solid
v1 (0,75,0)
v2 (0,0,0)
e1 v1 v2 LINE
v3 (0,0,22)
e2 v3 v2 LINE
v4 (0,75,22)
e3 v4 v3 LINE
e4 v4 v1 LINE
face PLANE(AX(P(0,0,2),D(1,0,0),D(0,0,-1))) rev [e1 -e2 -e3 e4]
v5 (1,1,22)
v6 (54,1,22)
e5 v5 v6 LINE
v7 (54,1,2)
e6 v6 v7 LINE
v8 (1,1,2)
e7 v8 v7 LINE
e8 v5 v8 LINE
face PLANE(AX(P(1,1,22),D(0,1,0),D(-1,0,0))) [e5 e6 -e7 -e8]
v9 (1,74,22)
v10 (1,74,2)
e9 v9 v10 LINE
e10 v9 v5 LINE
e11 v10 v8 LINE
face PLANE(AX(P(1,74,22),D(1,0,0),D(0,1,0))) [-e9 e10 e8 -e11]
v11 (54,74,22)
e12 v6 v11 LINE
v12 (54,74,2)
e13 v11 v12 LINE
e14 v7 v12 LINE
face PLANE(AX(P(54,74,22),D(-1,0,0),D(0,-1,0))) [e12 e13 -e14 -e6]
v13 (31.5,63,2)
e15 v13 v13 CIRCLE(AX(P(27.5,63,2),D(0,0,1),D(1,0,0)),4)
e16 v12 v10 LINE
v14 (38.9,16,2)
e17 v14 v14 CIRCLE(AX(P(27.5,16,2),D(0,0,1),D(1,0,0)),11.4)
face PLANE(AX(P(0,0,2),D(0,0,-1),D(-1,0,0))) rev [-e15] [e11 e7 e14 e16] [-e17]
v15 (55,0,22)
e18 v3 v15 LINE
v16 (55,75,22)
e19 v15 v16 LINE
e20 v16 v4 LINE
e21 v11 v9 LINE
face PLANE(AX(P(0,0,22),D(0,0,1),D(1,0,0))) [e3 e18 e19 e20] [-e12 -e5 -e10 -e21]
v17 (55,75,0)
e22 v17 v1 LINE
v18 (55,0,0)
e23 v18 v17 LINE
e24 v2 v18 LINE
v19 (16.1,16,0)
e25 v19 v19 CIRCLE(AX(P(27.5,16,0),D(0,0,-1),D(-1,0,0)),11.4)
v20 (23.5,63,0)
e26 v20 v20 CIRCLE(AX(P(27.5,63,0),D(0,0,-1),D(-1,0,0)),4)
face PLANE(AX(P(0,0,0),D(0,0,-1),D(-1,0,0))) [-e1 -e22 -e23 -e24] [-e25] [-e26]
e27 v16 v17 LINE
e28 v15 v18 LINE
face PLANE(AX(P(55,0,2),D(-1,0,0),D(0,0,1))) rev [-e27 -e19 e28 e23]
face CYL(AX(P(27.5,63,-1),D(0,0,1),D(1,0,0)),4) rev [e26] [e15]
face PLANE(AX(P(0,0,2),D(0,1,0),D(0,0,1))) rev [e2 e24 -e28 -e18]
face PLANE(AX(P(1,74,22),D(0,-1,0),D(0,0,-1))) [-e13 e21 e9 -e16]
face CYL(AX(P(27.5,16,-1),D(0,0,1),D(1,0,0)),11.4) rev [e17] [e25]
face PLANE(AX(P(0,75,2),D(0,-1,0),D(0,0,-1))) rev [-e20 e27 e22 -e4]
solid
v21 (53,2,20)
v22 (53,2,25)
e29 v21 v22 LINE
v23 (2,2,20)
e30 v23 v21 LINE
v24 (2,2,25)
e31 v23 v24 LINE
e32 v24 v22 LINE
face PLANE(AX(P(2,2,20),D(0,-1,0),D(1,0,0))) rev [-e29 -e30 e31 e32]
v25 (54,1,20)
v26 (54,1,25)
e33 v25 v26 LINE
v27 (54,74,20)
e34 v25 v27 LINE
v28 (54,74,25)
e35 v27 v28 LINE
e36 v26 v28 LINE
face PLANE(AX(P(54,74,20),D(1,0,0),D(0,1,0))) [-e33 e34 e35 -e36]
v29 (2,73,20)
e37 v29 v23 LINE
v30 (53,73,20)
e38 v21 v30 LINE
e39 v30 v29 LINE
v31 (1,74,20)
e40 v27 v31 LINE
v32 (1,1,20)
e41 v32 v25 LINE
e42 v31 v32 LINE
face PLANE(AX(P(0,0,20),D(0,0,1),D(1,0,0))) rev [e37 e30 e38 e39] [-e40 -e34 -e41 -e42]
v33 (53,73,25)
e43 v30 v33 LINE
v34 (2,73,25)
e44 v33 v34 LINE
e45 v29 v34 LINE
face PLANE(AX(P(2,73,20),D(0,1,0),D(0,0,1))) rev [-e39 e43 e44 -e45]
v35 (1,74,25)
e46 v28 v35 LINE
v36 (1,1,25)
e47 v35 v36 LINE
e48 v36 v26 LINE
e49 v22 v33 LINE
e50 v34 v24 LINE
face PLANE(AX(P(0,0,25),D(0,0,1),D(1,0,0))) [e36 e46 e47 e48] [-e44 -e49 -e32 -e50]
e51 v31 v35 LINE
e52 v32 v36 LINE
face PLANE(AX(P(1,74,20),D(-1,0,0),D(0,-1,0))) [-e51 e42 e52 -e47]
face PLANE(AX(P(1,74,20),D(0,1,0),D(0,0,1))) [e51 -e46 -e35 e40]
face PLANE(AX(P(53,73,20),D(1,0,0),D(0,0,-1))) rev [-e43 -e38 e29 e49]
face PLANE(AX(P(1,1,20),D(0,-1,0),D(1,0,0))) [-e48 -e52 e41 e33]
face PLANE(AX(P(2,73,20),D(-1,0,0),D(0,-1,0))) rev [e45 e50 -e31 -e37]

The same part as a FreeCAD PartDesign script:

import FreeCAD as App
import Part
import Sketcher
from FreeCAD import Vector
Q = App.Units.Quantity


def add_polygon(sketch, points):
    """Adds a closed chain of lines whose ends are joined by coincident constraints."""
    first, n = sketch.GeometryCount, len(points)
    for a, b in zip(points, points[1:] + points[:1]):
        sketch.addGeometry(Part.LineSegment(App.Vector(*a, 0), App.Vector(*b, 0)), False)
    for i in range(n):
        sketch.addConstraint(Sketcher.Constraint("Coincident", first + i, 2, first + (i + 1) % n, 1))

doc = App.newDocument("Part")
body = doc.addObject("PartDesign::Body", "Body")

sketch1 = body.newObject("Sketcher::SketchObject", "Sketch")
sketch1.AttachmentSupport = (doc.getObject("XY_Plane"), [""])
sketch1.MapMode = "FlatFace"
add_polygon(sketch1, [(0, 75), (0, 0), (55, 0), (55, 75)])
sketch1.addConstraint([
    Sketcher.Constraint("Vertical", 0),
    Sketcher.Constraint("Horizontal", 1),
    Sketcher.Constraint("Vertical", 2),
    Sketcher.Constraint("Horizontal", 3),
    Sketcher.Constraint("Coincident", 0, 2, -1, 1),
    Sketcher.Constraint("DistanceX", 1, 1, 1, 2, Q("55 mm")),
    Sketcher.Constraint("DistanceY", 0, 2, 0, 1, Q("75 mm")),
])
pad1 = body.newObject("PartDesign::Pad", "Pad")
pad1.Profile = sketch1
pad1.Length = 2

sketch2 = body.newObject("Sketcher::SketchObject", "Sketch001")
sketch2.AttachmentSupport = (doc.getObject("XY_Plane"), [""])
sketch2.MapMode = "FlatFace"
sketch2.AttachmentOffset = App.Placement(Vector(0, 0, 2), App.Rotation())
add_polygon(sketch2, [(0, 75), (0, 0), (55, 0), (55, 75)])
add_polygon(sketch2, [(54, 1), (1, 1), (1, 74), (54, 74)])
sketch2.addConstraint([
    Sketcher.Constraint("Vertical", 0),
    Sketcher.Constraint("Horizontal", 1),
    Sketcher.Constraint("Vertical", 2),
    Sketcher.Constraint("Horizontal", 3),
    Sketcher.Constraint("Horizontal", 4),
    Sketcher.Constraint("Vertical", 5),
    Sketcher.Constraint("Horizontal", 6),
    Sketcher.Constraint("Vertical", 7),
    Sketcher.Constraint("Coincident", 0, 2, -1, 1),
    Sketcher.Constraint("DistanceX", 1, 1, 1, 2, Q("55 mm")),
    Sketcher.Constraint("DistanceX", 4, 2, 4, 1, Q("53 mm")),
    Sketcher.Constraint("DistanceY", 0, 2, 0, 1, Q("75 mm")),
    Sketcher.Constraint("DistanceY", 5, 1, 5, 2, Q("73 mm")),
    Sketcher.Constraint("DistanceX", -1, 1, 4, 2, Q("1 mm")),
    Sketcher.Constraint("DistanceY", -1, 1, 4, 2, Q("1 mm")),
])
pad2 = body.newObject("PartDesign::Pad", "Pad001")
pad2.Profile = sketch2
pad2.Length = 20

sketch3 = body.newObject("Sketcher::SketchObject", "Sketch002")
sketch3.AttachmentSupport = (doc.getObject("XY_Plane"), [""])
sketch3.MapMode = "FlatFace"
sketch3.AttachmentOffset = App.Placement(Vector(0, 0, 2), App.Rotation())
sketch3.addGeometry([
    Part.Circle(Vector(27.5, 16, 0), Vector(0, 0, 1), 11.4),
    Part.Circle(Vector(27.5, 63, 0), Vector(0, 0, 1), 4),
], False)
sketch3.addConstraint([
    Sketcher.Constraint("Vertical", 0, 3, 1, 3),
    Sketcher.Constraint("Diameter", 1, Q("8 mm")),
    Sketcher.Constraint("Diameter", 0, Q("22.8 mm")),
    Sketcher.Constraint("DistanceY", -1, 1, 0, 3, Q("16 mm")),
    Sketcher.Constraint("DistanceY", -1, 1, 1, 3, Q("63 mm")),
    Sketcher.Constraint("DistanceX", -1, 1, 0, 3, Q("27.5 mm")),
])
pocket1 = body.newObject("PartDesign::Pocket", "Pocket")
pocket1.Profile = sketch3
pocket1.Length = 3
body2 = doc.addObject("PartDesign::Body", "Body001")

sketch4 = body2.newObject("Sketcher::SketchObject", "Sketch003")
sketch4.AttachmentSupport = (doc.getObject("XY_Plane001"), [""])
sketch4.MapMode = "FlatFace"
sketch4.AttachmentOffset = App.Placement(Vector(0, 0, 22), App.Rotation())
add_polygon(sketch4, [(1, 74), (1, 1), (54, 1), (54, 74)])
add_polygon(sketch4, [(53, 2), (2, 2), (2, 73), (53, 73)])
sketch4.addConstraint([
    Sketcher.Constraint("Vertical", 0),
    Sketcher.Constraint("Horizontal", 1),
    Sketcher.Constraint("Vertical", 2),
    Sketcher.Constraint("Horizontal", 3),
    Sketcher.Constraint("Horizontal", 4),
    Sketcher.Constraint("Vertical", 5),
    Sketcher.Constraint("Horizontal", 6),
    Sketcher.Constraint("Vertical", 7),
    Sketcher.Constraint("DistanceX", 1, 1, 1, 2, Q("53 mm")),
    Sketcher.Constraint("DistanceX", 4, 2, 4, 1, Q("51 mm")),
    Sketcher.Constraint("DistanceY", 0, 2, 0, 1, Q("73 mm")),
    Sketcher.Constraint("DistanceY", 5, 1, 5, 2, Q("71 mm")),
    Sketcher.Constraint("DistanceX", -1, 1, 0, 2, Q("1 mm")),
    Sketcher.Constraint("DistanceY", -1, 1, 0, 2, Q("1 mm")),
    Sketcher.Constraint("DistanceX", -1, 1, 4, 2, Q("2 mm")),
    Sketcher.Constraint("DistanceY", -1, 1, 4, 2, Q("2 mm")),
])
pad3 = body2.newObject("PartDesign::Pad", "Pad002")
pad3.Profile = sketch4
pad3.Type = "TwoLengths"
pad3.Length = 3
pad3.Length2 = 2

doc.recompute()
